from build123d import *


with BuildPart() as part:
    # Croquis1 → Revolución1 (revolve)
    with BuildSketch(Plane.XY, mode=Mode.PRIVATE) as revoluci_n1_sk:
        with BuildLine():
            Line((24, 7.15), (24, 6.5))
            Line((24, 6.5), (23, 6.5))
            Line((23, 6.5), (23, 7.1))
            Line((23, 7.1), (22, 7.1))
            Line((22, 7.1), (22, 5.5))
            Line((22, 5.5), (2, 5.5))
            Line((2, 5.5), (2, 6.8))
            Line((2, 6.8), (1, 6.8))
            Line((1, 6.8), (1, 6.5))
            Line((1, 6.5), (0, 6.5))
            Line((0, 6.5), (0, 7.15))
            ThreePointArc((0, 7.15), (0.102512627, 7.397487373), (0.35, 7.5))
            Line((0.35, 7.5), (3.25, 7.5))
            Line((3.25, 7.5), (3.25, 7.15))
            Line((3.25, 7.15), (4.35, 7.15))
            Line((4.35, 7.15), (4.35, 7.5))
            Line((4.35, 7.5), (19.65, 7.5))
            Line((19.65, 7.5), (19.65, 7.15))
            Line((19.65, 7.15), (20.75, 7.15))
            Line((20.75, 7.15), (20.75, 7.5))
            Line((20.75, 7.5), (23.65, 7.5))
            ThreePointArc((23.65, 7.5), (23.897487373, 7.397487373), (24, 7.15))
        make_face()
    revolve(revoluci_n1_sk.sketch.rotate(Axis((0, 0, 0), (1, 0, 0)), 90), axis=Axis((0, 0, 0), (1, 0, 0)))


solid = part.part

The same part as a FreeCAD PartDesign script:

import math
import FreeCAD as App
import Part
import Sketcher

V = App.Vector

doc = App.newDocument("Part")
body = doc.addObject("PartDesign::Body", "Body")

# Sketch on XY plane
sketch1 = body.newObject("Sketcher::SketchObject", "Sketch")
sketch1.AttachmentSupport = (doc.getObject("XY_Plane"), [""])
sketch1.MapMode = "FlatFace"
sketch1.addGeometry([
    Part.LineSegment(V(24, 6.5, 0), V(24, 7.15, 0)),  # 0
    Part.ArcOfCircle(Part.Circle(V(23.65, 7.15, 0), V(0, 0, 1), 0.35), math.radians(0), math.radians(90)),  # 1
    Part.LineSegment(V(23.65, 7.5, 0), V(20.75, 7.5, 0)),  # 2
    Part.LineSegment(V(20.75, 7.5, 0), V(20.75, 7.15, 0)),  # 3
    Part.LineSegment(V(20.75, 7.15, 0), V(19.65, 7.15, 0)),  # 4
    Part.LineSegment(V(19.65, 7.15, 0), V(19.65, 7.5, 0)),  # 5
    Part.LineSegment(V(19.65, 7.5, 0), V(4.35, 7.5, 0)),  # 6
    Part.LineSegment(V(4.35, 7.5, 0), V(4.35, 7.15, 0)),  # 7
    Part.LineSegment(V(4.35, 7.15, 0), V(3.25, 7.15, 0)),  # 8
    Part.LineSegment(V(3.25, 7.15, 0), V(3.25, 7.5, 0)),  # 9
    Part.LineSegment(V(3.25, 7.5, 0), V(0.35, 7.5, 0)),  # 10
    Part.ArcOfCircle(Part.Circle(V(0.35, 7.15, 0), V(0, 0, 1), 0.35), math.radians(90), math.radians(180)),  # 11
    Part.LineSegment(V(0, 7.15, 0), V(0, 6.5, 0)),  # 12
    Part.LineSegment(V(0, 6.5, 0), V(1, 6.5, 0)),  # 13
    Part.LineSegment(V(1, 6.5, 0), V(1, 6.8, 0)),  # 14
    Part.LineSegment(V(1, 6.8, 0), V(2, 6.8, 0)),  # 15
    Part.LineSegment(V(2, 6.8, 0), V(2, 5.5, 0)),  # 16
    Part.LineSegment(V(2, 5.5, 0), V(22, 5.5, 0)),  # 17
    Part.LineSegment(V(22, 5.5, 0), V(22, 7.1, 0)),  # 18
    Part.LineSegment(V(22, 7.1, 0), V(23, 7.1, 0)),  # 19
    Part.LineSegment(V(23, 7.1, 0), V(23, 6.5, 0)),  # 20
    Part.LineSegment(V(23, 6.5, 0), V(24, 6.5, 0)),  # 21
], False)
sketch1.addConstraint([
    Sketcher.Constraint("Tangent", 0, 2, 1, 1),
    Sketcher.Constraint("Tangent", 1, 2, 2, 1),
    Sketcher.Constraint("Coincident", 2, 2, 3, 1),
    Sketcher.Constraint("Coincident", 3, 2, 4, 1),
    Sketcher.Constraint("Coincident", 4, 2, 5, 1),
    Sketcher.Constraint("Coincident", 5, 2, 6, 1),
    Sketcher.Constraint("Coincident", 6, 2, 7, 1),
    Sketcher.Constraint("Coincident", 7, 2, 8, 1),
    Sketcher.Constraint("Coincident", 8, 2, 9, 1),
    Sketcher.Constraint("Coincident", 9, 2, 10, 1),
    Sketcher.Constraint("Tangent", 10, 2, 11, 1),
    Sketcher.Constraint("Tangent", 11, 2, 12, 1),
    Sketcher.Constraint("Coincident", 12, 2, 13, 1),
    Sketcher.Constraint("Coincident", 13, 2, 14, 1),
    Sketcher.Constraint("Coincident", 14, 2, 15, 1),
    Sketcher.Constraint("Coincident", 15, 2, 16, 1),
    Sketcher.Constraint("Coincident", 16, 2, 17, 1),
    Sketcher.Constraint("Coincident", 17, 2, 18, 1),
    Sketcher.Constraint("Coincident", 18, 2, 19, 1),
    Sketcher.Constraint("Coincident", 19, 2, 20, 1),
    Sketcher.Constraint("Coincident", 20, 2, 21, 1),
    Sketcher.Constraint("Coincident", 21, 2, 0, 1),
    Sketcher.Constraint("Vertical", 0),
    Sketcher.Constraint("Horizontal", 2),
    Sketcher.Constraint("Vertical", 3),
    Sketcher.Constraint("Horizontal", 4),
    Sketcher.Constraint("Vertical", 5),
    Sketcher.Constraint("Horizontal", 6),
    Sketcher.Constraint("Vertical", 7),
    Sketcher.Constraint("Horizontal", 8),
    Sketcher.Constraint("Vertical", 9),
    Sketcher.Constraint("Horizontal", 10),
    Sketcher.Constraint("Vertical", 12),
    Sketcher.Constraint("Horizontal", 13),
    Sketcher.Constraint("Vertical", 14),
    Sketcher.Constraint("Horizontal", 15),
    Sketcher.Constraint("Vertical", 16),
    Sketcher.Constraint("Horizontal", 17),
    Sketcher.Constraint("Vertical", 18),
    Sketcher.Constraint("Horizontal", 19),
    Sketcher.Constraint("Vertical", 20),
    Sketcher.Constraint("Horizontal", 21),
    Sketcher.Constraint("Equal", 1, 11),
    Sketcher.Constraint("PointOnObject", 11, 2, -2),
    Sketcher.Constraint("Horizontal", 1, 3, 11, 3),
    Sketcher.Constraint("Horizontal", 0, 2, 3, 2),
    Sketcher.Constraint("Horizontal", 2, 2, 5, 2),
    Sketcher.Constraint("Horizontal", 4, 2, 7, 2),
    Sketcher.Constraint("Horizontal", 13, 2, 20, 2),
    Sketcher.Constraint("Equal", 4, 8),
    Sketcher.Constraint("Equal", 2, 10),
    Sketcher.Constraint("Equal", 13, 15),
    Sketcher.Constraint("Equal", 15, 19),
    Sketcher.Constraint("Equal", 19, 21),
    Sketcher.Constraint("DistanceX", 13, 1, 13, 2, 1.0),
    Sketcher.Constraint("DistanceX", 17, 1, 17, 2, 20.0),
    Sketcher.Constraint("Radius", 1, 0.35),
    Sketcher.Constraint("DistanceX", 2, 2, 2, 1, 2.9),
    Sketcher.Constraint("DistanceX", 4, 2, 4, 1, 1.1),
    Sketcher.Constraint("DistanceY", 14, 1, 14, 2, 0.3),
    Sketcher.Constraint("DistanceY", 16, 2, 16, 1, 1.3),
    Sketcher.Constraint("DistanceY", 18, 1, 18, 2, 1.6),
    Sketcher.Constraint("DistanceY", 12, 2, 10, 2, 1.0),
    Sketcher.Constraint("DistanceY", -1, 1, 1, 2, 7.5),
])
revolution = body.newObject("PartDesign::Revolution", "Revolution")
revolution.Profile = sketch1
revolution.ReferenceAxis = (sketch1, ["H_Axis"])
revolution.Angle = 360

doc.recompute()
